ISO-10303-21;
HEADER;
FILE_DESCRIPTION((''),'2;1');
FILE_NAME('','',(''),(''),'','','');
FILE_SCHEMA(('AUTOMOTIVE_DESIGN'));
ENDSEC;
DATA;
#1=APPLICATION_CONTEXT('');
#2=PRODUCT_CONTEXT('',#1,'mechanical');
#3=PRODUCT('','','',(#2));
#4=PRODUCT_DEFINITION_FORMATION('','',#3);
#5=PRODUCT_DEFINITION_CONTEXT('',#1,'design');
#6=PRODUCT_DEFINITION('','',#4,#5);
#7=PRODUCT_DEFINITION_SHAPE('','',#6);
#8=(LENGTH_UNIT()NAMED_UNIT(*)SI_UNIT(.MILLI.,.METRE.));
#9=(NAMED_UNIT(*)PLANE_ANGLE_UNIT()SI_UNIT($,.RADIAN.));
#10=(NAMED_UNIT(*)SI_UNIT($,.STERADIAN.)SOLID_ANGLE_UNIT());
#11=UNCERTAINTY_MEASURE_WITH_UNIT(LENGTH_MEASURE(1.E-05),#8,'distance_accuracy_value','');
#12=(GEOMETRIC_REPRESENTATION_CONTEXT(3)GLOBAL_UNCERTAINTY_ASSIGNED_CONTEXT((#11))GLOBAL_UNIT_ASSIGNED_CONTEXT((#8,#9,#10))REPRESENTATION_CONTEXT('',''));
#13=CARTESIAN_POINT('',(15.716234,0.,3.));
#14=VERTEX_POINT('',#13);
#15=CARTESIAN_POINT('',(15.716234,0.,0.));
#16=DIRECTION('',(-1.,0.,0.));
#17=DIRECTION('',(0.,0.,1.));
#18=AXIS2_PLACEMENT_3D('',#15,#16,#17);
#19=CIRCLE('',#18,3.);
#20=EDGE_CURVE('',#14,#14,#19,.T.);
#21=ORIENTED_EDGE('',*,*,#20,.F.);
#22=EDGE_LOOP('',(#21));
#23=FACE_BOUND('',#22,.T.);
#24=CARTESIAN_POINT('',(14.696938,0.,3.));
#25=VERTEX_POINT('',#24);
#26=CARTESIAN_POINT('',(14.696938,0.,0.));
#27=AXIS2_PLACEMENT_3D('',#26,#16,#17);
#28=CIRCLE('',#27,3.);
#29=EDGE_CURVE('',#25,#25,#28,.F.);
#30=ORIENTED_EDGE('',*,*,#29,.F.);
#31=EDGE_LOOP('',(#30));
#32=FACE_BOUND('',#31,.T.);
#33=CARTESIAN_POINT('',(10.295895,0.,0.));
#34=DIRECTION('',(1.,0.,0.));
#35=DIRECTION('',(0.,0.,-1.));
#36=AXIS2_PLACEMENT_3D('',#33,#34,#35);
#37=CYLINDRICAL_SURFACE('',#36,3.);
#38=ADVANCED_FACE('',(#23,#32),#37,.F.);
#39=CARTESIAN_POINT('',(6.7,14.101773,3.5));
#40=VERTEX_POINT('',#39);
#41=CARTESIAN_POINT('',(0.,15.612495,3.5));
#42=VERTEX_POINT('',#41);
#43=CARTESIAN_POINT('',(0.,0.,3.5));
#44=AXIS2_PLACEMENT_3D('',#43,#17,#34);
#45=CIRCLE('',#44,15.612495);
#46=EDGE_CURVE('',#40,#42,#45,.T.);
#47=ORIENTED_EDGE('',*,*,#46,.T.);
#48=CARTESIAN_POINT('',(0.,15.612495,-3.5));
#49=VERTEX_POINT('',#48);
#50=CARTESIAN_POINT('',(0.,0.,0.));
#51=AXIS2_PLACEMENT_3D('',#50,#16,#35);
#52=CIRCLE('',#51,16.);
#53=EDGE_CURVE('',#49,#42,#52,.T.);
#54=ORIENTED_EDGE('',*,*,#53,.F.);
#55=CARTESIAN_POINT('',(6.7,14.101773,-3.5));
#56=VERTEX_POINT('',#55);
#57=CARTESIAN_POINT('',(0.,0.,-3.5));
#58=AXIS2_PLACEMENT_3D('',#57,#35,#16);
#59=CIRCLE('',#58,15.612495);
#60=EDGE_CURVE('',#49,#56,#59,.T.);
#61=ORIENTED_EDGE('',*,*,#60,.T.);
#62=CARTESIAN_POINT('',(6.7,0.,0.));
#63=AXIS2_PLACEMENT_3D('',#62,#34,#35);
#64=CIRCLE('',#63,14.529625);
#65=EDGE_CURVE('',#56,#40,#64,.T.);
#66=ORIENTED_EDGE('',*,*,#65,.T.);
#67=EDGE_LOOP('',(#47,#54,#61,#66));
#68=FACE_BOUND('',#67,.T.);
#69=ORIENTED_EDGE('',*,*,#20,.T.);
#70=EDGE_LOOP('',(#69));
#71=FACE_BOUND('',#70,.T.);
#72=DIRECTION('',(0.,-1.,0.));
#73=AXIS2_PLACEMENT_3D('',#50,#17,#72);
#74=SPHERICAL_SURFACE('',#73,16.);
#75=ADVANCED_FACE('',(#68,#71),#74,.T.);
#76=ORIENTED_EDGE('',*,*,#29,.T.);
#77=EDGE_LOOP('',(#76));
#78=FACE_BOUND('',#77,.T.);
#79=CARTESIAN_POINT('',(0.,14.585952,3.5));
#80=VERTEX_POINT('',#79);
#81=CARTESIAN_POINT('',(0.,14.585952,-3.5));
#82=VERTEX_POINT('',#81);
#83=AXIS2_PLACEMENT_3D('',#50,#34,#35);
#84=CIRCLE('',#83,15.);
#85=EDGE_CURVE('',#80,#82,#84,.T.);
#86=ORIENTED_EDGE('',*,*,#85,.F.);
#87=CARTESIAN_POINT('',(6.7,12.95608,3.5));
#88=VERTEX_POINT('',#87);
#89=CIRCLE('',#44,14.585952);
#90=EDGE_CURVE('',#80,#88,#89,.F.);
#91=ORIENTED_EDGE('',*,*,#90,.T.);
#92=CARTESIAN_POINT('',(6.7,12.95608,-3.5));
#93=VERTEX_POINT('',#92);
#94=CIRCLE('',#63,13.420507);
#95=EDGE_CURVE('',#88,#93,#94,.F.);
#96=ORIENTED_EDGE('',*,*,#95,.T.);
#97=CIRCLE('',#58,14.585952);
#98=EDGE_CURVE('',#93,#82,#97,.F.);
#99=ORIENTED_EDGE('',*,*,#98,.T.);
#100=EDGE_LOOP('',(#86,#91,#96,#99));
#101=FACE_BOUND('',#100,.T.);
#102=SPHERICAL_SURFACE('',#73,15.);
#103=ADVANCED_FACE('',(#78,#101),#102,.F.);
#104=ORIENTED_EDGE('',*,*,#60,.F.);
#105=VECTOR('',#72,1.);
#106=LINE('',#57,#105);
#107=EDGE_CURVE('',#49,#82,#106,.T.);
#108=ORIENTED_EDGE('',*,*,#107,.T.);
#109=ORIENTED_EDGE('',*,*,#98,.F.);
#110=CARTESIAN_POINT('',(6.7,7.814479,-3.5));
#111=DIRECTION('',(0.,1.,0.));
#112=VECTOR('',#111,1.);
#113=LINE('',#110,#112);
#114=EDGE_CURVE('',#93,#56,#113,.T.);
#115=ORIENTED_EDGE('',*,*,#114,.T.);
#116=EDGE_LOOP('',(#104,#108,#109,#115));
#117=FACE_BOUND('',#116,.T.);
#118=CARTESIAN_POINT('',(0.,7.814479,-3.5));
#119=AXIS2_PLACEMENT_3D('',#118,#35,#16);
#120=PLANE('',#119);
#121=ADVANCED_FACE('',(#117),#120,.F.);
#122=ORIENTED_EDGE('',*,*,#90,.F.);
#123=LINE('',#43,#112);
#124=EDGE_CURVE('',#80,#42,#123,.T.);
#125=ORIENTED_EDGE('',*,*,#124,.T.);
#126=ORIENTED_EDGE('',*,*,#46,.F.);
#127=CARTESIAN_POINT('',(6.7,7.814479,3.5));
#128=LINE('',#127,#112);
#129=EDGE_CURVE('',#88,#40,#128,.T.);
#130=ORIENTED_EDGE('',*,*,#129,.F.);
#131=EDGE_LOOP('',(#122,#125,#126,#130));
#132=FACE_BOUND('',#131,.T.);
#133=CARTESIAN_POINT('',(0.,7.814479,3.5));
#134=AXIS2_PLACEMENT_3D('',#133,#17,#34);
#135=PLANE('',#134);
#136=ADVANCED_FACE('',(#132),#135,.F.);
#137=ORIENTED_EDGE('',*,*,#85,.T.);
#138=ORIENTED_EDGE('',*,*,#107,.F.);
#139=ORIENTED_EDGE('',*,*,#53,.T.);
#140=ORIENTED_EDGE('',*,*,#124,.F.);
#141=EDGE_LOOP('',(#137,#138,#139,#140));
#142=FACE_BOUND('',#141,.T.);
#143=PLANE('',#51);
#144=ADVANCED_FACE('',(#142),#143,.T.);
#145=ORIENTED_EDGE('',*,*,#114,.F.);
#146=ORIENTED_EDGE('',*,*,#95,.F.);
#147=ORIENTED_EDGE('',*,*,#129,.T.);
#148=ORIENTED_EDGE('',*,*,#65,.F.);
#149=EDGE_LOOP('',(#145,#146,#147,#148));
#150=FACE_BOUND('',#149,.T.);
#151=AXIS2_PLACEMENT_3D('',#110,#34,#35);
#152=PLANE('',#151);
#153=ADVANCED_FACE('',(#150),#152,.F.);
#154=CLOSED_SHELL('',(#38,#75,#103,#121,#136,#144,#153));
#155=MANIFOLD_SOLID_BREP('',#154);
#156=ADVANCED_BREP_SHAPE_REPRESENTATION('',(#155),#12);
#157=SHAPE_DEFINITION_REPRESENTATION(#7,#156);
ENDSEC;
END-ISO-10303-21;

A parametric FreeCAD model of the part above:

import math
import FreeCAD as App
import Part
import Sketcher

V = App.Vector
Q = App.Units.Quantity


def add_polygon(sketch, points):
    """Adds a closed chain of lines whose ends are joined by coincident constraints."""
    first, n = sketch.GeometryCount, len(points)
    for a, b in zip(points, points[1:] + points[:1]):
        sketch.addGeometry(Part.LineSegment(App.Vector(*a, 0), App.Vector(*b, 0)), False)
    for i in range(n):
        sketch.addConstraint(Sketcher.Constraint("Coincident", first + i, 2, first + (i + 1) % n, 1))

doc = App.newDocument("Part")
body = doc.addObject("PartDesign::Body", "Body")

# Sketch on YZ plane
sketch1 = body.newObject("Sketcher::SketchObject", "Sketch")
sketch1.AttachmentSupport = (doc.getObject("YZ_Plane"), [""])
sketch1.MapMode = "FlatFace"
sketch1.addGeometry([
    Part.LineSegment(V(0, 16, 0), V(0, 15, 0)),
    Part.ArcOfCircle(Part.Circle(V(0, 0, 0), V(0, 0, 1), 15), math.radians(-90), math.radians(90)),
    Part.LineSegment(V(0, -15, 0), V(0, -16, 0)),
    Part.ArcOfCircle(Part.Circle(V(0, 0, 0), V(0, 0, 1), 16), math.radians(-90), math.radians(90)),
], False)
sketch1.addConstraint([
    Sketcher.Constraint("Coincident", 0, 2, 1, 2),
    Sketcher.Constraint("Coincident", 1, 1, 2, 1),
    Sketcher.Constraint("Coincident", 2, 2, 3, 1),
    Sketcher.Constraint("Coincident", 3, 2, 0, 1),
    Sketcher.Constraint("Vertical", 0),
    Sketcher.Constraint("Vertical", 2),
    Sketcher.Constraint("Coincident", 1, 3, -1, 1),
    Sketcher.Constraint("Coincident", 3, 3, -1, 1),
    Sketcher.Constraint("PointOnObject", 0, 2, -2),
    Sketcher.Constraint("PointOnObject", 1, 1, -2),
    Sketcher.Constraint("Radius", 1, Q("15 mm")),
    Sketcher.Constraint("Radius", 3, Q("16 mm")),
])
revolution = body.newObject("PartDesign::Revolution", "Revolution")
revolution.Profile = sketch1
revolution.ReferenceAxis = (sketch1, ["V_Axis"])
revolution.Angle = 180
revolution.Reversed = True

# Sketch on YZ plane
sketch2 = body.newObject("Sketcher::SketchObject", "Sketch001")
sketch2.AttachmentSupport = (doc.getObject("YZ_Plane"), [""])
sketch2.MapMode = "FlatFace"
sketch2.AttachmentOffset = App.Placement(V(0, 0, 20.295895), App.Rotation())
sketch2.addGeometry(Part.Circle(V(0, 0, 0), V(0, 0, 1), 3), False)
sketch2.addConstraint([
    Sketcher.Constraint("Coincident", 0, 3, -1, 1),
    Sketcher.Constraint("Diameter", 0, Q("6 mm")),
])
pocket1 = body.newObject("PartDesign::Pocket", "Pocket")
pocket1.Profile = sketch2
pocket1.Length = 10

# Sketch on XZ plane
sketch3 = body.newObject("Sketcher::SketchObject", "Sketch002")
sketch3.AttachmentSupport = (doc.getObject("XZ_Plane"), [""])
sketch3.MapMode = "FlatFace"
sketch3.AttachmentOffset = App.Placement(V(0, 0, -27.814479), App.Rotation())
add_polygon(sketch3, [(0, -4), (0, 4), (7, 4), (7, -4)])  # lines 0-3
sketch3.addConstraint([
    Sketcher.Constraint("Vertical", 0),
    Sketcher.Constraint("Horizontal", 1),
    Sketcher.Constraint("Vertical", 2),
    Sketcher.Constraint("Horizontal", 3),
    Sketcher.Constraint("Symmetric", 0, 2, 3, 2, -1, 1),
    Sketcher.Constraint("DistanceY", 0, 1, 0, 2, Q("7 mm")),
    Sketcher.Constraint("DistanceX", 1, 1, 1, 2, Q("6.7 mm")),
])
pocket2 = body.newObject("PartDesign::Pocket", "Pocket001")
pocket2.Profile = sketch3
pocket2.Length = 20
pocket2.Reversed = True

doc.recompute()
